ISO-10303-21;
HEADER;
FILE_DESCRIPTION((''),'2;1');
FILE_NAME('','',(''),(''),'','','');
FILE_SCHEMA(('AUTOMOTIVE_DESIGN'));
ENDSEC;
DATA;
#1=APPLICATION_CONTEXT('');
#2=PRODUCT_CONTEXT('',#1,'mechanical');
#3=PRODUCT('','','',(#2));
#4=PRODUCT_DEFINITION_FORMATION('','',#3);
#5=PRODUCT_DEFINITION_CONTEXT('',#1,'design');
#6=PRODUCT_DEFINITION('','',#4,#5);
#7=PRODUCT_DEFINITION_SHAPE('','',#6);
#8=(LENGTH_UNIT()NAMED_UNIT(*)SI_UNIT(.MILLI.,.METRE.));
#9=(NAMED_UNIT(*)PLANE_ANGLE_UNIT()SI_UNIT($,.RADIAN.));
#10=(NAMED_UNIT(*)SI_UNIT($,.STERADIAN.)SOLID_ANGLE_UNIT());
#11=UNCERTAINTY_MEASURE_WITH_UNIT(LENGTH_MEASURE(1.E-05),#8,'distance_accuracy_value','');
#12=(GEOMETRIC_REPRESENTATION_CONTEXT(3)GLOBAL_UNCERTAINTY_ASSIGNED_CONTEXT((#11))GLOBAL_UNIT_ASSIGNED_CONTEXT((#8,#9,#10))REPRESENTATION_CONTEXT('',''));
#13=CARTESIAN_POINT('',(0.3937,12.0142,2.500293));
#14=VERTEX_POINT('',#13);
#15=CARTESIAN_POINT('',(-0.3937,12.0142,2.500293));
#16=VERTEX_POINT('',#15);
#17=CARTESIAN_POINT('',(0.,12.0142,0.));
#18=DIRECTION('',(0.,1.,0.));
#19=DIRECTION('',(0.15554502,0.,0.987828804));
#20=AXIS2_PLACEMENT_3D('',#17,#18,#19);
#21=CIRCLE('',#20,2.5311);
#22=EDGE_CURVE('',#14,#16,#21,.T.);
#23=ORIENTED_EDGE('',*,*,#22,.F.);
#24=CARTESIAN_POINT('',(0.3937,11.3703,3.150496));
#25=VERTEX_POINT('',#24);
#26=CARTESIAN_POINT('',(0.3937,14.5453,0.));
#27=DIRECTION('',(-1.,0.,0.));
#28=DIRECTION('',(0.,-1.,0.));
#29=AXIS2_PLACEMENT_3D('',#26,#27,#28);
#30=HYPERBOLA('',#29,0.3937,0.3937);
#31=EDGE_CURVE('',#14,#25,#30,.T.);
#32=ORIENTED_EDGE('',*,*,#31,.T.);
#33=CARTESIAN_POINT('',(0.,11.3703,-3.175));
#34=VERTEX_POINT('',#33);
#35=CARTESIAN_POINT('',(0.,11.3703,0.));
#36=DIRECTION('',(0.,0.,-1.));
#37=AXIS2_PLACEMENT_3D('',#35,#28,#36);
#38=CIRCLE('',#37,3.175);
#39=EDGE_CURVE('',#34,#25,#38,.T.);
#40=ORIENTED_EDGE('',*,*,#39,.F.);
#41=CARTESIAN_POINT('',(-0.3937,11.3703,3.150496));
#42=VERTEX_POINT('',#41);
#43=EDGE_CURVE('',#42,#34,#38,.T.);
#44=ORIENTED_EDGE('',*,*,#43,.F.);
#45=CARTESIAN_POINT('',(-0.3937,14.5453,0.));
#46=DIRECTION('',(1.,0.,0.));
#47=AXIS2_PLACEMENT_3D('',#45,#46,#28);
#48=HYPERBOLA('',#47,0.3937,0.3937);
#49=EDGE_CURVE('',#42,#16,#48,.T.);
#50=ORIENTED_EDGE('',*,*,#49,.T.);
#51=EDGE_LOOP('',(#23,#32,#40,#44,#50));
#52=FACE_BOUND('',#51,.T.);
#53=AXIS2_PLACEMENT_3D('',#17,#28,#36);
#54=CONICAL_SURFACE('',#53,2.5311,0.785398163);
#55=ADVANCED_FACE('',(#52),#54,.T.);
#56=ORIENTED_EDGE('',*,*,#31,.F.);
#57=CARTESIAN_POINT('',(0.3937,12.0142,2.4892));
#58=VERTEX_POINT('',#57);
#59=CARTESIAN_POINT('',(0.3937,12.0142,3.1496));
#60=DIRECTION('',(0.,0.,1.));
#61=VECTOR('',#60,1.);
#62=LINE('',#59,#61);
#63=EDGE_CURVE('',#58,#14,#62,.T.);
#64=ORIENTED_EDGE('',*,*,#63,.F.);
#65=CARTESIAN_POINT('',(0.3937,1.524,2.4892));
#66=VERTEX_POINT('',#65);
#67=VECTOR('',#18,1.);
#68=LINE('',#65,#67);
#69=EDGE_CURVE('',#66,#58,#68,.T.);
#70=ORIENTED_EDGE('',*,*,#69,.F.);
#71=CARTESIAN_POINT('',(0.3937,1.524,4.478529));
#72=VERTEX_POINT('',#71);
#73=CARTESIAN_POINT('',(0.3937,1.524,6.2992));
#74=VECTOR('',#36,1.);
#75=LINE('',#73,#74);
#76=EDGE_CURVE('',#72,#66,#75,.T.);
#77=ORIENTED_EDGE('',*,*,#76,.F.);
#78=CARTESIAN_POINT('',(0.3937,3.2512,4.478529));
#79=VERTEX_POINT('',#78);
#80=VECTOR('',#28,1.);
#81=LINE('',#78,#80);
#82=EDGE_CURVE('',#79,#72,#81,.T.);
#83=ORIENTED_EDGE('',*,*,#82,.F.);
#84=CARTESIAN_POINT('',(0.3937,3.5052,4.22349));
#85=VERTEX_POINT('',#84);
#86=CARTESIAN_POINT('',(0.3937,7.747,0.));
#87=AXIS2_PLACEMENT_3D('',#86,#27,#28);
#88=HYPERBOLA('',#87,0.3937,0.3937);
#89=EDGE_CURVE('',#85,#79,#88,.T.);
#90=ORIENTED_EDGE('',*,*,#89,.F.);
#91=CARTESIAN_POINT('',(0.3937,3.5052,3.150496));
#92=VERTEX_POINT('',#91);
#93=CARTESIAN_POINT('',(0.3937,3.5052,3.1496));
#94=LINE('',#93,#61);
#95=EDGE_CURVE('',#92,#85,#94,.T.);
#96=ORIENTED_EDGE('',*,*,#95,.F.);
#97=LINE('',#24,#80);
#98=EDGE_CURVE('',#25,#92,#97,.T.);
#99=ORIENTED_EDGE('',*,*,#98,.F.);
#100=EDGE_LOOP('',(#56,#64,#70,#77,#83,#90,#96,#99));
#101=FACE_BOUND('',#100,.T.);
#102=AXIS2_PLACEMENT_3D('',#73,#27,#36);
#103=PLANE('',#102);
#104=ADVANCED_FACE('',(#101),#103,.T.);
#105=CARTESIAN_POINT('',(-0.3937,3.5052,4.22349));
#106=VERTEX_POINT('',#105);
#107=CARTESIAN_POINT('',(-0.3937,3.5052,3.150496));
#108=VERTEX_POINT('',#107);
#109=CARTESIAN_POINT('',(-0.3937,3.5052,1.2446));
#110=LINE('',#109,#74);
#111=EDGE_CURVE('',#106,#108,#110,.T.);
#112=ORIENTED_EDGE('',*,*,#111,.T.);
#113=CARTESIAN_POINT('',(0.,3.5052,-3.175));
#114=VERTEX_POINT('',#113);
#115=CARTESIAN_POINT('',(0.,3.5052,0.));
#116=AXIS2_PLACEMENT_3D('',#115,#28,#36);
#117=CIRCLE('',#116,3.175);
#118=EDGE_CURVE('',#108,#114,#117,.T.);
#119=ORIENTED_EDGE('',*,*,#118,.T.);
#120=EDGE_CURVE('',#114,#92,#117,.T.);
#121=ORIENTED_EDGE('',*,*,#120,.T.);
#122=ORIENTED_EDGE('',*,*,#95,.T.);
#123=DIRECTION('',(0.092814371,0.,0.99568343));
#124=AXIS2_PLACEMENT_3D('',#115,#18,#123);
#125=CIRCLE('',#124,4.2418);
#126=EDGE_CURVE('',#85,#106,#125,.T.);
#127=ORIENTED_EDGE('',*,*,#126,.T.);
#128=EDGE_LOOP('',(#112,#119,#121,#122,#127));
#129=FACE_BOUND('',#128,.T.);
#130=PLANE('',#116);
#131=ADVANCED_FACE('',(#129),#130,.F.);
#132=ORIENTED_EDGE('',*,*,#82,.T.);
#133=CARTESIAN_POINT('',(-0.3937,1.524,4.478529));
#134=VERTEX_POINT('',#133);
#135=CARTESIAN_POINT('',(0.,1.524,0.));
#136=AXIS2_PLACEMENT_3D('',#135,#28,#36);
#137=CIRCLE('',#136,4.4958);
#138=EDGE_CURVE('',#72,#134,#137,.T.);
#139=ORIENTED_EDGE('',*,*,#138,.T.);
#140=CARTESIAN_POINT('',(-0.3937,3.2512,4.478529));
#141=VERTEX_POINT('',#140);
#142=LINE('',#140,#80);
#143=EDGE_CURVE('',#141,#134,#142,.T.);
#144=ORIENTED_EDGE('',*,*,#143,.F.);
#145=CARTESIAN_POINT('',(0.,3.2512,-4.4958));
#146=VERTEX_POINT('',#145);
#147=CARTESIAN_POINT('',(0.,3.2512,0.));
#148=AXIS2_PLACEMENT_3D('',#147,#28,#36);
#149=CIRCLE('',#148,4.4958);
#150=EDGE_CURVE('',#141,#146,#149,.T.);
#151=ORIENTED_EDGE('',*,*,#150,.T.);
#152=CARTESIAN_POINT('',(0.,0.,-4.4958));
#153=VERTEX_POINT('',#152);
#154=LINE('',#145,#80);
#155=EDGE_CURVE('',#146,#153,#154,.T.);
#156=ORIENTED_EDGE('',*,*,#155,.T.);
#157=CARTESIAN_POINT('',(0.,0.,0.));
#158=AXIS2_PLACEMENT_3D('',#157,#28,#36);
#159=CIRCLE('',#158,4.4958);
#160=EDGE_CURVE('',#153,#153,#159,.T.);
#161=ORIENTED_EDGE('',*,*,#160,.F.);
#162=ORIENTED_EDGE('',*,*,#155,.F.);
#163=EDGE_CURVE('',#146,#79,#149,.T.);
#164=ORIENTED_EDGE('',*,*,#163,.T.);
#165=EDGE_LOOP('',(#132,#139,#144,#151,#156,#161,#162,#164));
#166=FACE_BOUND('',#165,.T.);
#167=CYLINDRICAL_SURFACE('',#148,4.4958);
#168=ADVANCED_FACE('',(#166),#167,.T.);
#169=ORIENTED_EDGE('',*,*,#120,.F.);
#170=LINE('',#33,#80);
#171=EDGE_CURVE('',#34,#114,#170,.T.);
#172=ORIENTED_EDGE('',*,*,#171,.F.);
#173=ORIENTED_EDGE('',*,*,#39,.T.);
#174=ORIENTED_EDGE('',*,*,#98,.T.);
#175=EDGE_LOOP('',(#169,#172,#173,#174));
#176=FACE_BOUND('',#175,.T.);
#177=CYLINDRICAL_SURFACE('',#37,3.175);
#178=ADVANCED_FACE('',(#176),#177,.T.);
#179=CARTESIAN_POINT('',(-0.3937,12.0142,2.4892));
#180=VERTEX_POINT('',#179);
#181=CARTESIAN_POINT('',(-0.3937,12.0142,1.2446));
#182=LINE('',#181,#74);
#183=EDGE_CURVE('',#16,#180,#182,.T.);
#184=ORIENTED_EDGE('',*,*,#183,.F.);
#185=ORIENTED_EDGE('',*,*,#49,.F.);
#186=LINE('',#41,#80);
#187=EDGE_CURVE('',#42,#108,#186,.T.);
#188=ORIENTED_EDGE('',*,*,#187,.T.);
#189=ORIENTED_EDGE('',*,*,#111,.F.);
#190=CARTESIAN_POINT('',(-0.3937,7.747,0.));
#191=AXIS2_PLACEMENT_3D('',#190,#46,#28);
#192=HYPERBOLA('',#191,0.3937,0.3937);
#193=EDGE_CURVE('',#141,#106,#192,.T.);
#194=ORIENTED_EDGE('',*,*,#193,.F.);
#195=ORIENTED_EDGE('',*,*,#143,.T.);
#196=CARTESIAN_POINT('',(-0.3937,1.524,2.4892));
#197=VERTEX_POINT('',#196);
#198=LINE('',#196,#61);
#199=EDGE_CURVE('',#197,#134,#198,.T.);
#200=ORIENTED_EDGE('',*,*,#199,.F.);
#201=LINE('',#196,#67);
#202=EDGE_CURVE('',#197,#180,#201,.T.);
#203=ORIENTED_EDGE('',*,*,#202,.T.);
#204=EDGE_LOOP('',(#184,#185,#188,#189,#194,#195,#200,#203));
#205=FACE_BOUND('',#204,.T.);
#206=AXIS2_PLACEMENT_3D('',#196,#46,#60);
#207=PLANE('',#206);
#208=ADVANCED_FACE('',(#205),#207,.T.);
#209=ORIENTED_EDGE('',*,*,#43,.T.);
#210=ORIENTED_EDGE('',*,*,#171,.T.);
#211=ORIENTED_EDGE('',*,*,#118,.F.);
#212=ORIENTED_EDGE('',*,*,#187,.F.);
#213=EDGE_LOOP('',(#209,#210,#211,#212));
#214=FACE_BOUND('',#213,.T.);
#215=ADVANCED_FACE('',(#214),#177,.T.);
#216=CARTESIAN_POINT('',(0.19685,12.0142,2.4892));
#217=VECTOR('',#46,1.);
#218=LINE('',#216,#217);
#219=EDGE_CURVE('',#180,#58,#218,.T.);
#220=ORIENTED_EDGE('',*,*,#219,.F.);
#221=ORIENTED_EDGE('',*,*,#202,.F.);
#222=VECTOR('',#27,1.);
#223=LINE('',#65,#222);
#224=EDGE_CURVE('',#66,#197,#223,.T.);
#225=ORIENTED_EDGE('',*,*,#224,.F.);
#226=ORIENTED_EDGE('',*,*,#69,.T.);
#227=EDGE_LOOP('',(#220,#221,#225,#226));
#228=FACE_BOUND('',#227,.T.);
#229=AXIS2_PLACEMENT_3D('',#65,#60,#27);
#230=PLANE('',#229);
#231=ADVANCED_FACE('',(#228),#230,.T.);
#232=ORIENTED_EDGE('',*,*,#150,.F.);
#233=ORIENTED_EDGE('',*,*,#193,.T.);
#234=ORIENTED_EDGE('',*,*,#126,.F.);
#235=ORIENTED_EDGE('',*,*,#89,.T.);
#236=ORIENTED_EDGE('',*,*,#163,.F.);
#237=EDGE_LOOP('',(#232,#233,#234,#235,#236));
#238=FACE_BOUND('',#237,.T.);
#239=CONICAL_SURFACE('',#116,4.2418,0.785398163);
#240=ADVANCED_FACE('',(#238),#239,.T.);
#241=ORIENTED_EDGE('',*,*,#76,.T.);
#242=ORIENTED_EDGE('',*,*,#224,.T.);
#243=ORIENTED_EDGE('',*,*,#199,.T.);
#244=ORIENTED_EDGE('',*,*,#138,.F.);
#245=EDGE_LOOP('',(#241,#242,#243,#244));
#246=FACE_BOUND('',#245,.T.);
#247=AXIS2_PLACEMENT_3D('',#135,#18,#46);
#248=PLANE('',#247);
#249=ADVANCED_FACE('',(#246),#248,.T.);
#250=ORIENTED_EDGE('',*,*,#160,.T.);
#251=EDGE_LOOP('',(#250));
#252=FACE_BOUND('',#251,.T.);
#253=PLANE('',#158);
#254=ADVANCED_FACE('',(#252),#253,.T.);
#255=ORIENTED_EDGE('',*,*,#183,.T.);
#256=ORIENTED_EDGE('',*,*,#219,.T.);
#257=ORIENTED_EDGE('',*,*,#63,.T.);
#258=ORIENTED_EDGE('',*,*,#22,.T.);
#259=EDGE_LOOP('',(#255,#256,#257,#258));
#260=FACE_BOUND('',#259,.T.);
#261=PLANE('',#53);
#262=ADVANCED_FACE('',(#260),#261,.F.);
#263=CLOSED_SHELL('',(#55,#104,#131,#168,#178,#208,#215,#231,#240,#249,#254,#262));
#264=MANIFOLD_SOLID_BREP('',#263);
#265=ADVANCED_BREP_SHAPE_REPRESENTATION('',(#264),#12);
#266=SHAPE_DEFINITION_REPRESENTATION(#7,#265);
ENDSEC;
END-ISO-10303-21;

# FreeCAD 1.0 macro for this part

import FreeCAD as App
import Part
import Sketcher
Q = App.Units.Quantity


def add_polygon(sketch, points):
    """Adds a closed chain of lines whose ends are joined by coincident constraints."""
    first, n = sketch.GeometryCount, len(points)
    for a, b in zip(points, points[1:] + points[:1]):
        sketch.addGeometry(Part.LineSegment(App.Vector(*a, 0), App.Vector(*b, 0)), False)
    for i in range(n):
        sketch.addConstraint(Sketcher.Constraint("Coincident", first + i, 2, first + (i + 1) % n, 1))

doc = App.newDocument("Part")
body = doc.addObject("PartDesign::Body", "Body")

# Sketch on YZ plane
sketch1 = body.newObject("Sketcher::SketchObject", "Sketch")
sketch1.AttachmentSupport = (doc.getObject("YZ_Plane"), [""])
sketch1.MapMode = "FlatFace"
add_polygon(sketch1, [(12.01, 0), (0, 0), (0, -4.5), (3.25, -4.5), (3.51, -4.24), (3.51, -3.17), (11.37, -3.17), (12.01, -2.53)])  # lines 0-7
sketch1.addConstraint([
    Sketcher.Constraint("Horizontal", 0),
    Sketcher.Constraint("Vertical", 1),
    Sketcher.Constraint("Horizontal", 2),
    Sketcher.Constraint("Vertical", 4),
    Sketcher.Constraint("Horizontal", 5),
    Sketcher.Constraint("Vertical", 7),
    Sketcher.Constraint("Coincident", 0, 2, -1, 1),
    Sketcher.Constraint("Parallel", 3, 6),
    Sketcher.Constraint("Angle", 3, Q("45 deg")),
    Sketcher.Constraint("DistanceX", 0, 2, 0, 1, Q("0.473 in")),
    Sketcher.Constraint("DistanceX", 2, 1, 2, 2, Q("0.128 in")),
    Sketcher.Constraint("DistanceY", 1, 2, 1, 1, Q("0.177 in")),
    Sketcher.Constraint("DistanceY", 4, 1, 4, 2, Q("0.042 in")),
    Sketcher.Constraint("DistanceX", 2, 2, 3, 2, Q("0.01 in")),
    Sketcher.Constraint("DistanceX", 5, 1, 5, 2, 7.865),
])
revolution = body.newObject("PartDesign::Revolution", "Revolution")
revolution.Profile = sketch1
revolution.ReferenceAxis = (sketch1, ["H_Axis"])
revolution.Angle = 360

# Sketch on XZ plane
sketch2 = body.newObject("Sketcher::SketchObject", "Sketch001")
sketch2.AttachmentSupport = (doc.getObject("XZ_Plane"), [""])
sketch2.MapMode = "FlatFace"
sketch2.AttachmentOffset = App.Placement(App.Vector(0, 0, -0.06 * 25.4), App.Rotation())
add_polygon(sketch2, [(0.4, 2.5), (-0.4, 2.5), (-0.4, 6.3), (0.4, 6.3)])  # lines 0-3
sketch2.addConstraint([
    Sketcher.Constraint("Horizontal", 0),
    Sketcher.Constraint("Vertical", 1),
    Sketcher.Constraint("Horizontal", 2),
    Sketcher.Constraint("Vertical", 3),
    Sketcher.Constraint("DistanceY", 1, 1, 1, 2, Q("0.15 in")),
    Sketcher.Constraint("DistanceX", 0, 2, 0, 1, Q("0.031 in")),
    Sketcher.Constraint("DistanceY", -1, 1, 0, 2, Q("0.098 in")),
    Sketcher.Constraint("DistanceX", 0, 2, -1, 1, Q("0.0155 in")),
])
pocket1 = body.newObject("PartDesign::Pocket", "Pocket")
pocket1.Profile = sketch2
pocket1.Length = Q("0.48 in")

doc.recompute()
